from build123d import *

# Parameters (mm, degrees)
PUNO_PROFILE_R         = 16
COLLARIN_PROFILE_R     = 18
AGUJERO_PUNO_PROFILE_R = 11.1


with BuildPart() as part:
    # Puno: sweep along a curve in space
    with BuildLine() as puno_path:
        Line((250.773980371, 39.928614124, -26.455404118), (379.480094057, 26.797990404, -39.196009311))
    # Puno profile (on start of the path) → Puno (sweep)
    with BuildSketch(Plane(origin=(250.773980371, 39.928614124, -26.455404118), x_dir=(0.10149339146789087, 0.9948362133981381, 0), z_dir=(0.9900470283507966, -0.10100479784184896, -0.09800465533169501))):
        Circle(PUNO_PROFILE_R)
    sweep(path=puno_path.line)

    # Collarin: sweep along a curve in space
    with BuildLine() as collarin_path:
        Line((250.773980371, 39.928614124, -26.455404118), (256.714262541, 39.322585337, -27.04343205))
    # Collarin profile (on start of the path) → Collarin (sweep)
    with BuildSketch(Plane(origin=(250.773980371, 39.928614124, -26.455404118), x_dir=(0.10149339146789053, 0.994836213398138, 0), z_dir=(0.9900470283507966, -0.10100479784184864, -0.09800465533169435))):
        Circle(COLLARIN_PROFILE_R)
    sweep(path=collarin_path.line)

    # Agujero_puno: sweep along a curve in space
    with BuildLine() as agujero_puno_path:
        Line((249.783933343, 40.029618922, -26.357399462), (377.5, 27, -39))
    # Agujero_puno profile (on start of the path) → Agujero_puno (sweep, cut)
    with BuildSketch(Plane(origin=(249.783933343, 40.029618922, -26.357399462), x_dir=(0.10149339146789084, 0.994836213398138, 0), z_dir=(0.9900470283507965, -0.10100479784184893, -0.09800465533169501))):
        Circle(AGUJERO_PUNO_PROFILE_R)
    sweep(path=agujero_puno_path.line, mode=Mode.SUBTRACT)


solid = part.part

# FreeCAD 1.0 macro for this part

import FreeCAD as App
import Part
import Sketcher

doc = App.newDocument("Part")
body = doc.addObject("PartDesign::Body", "Body")

sketch1 = body.newObject("Sketcher::SketchObject", "Sketch")
sketch1.Placement = App.Placement(App.Vector(250.77398, 39.928614, -26.455404), App.Rotation(App.Vector(0.101493391, 0.994836213, 0), App.Vector(0.09749858, -0.009946825, 0.995185955), App.Vector(0.990047028, -0.101004798, -0.098004655), "ZXY"))
sketch1.addGeometry(Part.Circle(App.Vector(0, 0, 0), App.Vector(0, 0, 1), 16), False)
sketch1.addConstraint([
    Sketcher.Constraint("Coincident", 0, 3, -1, 1),
    Sketcher.Constraint("Diameter", 0, 32.0),
])

sketch2 = body.newObject("Sketcher::SketchObject", "Sketch001")
sketch2.Placement = App.Placement(App.Vector(6.614764, 64.837787, 0), App.Rotation(App.Vector(0.994836213, -0.101493391, 0), App.Vector(0, 0, 0.999999999), App.Vector(-0.101493391, -0.994836213, 0), "ZXY"))
sketch2.addGeometry(Part.LineSegment(App.Vector(245, -26, 0), App.Vector(375, -39, 0)), False)
sketch2.addConstraint([
    Sketcher.Constraint("Distance", 0, 130.0),
    Sketcher.Constraint("DistanceX", -1, 1, 0, 2, 374.800721),
    Sketcher.Constraint("DistanceY", 0, 2, -1, 1, 39.196009),
    Sketcher.Constraint("DistanceX", -1, 1, 0, 1, 245.426546),
])
doc.recompute()

additivepipe = body.newObject("PartDesign::AdditivePipe", "AdditivePipe")
additivepipe.Profile = sketch1
additivepipe.Spine = (sketch2, ["Edge1"])

sketch3 = body.newObject("Sketcher::SketchObject", "Sketch002")
sketch3.Placement = App.Placement(App.Vector(250.77398, 39.928614, -26.455404), App.Rotation(App.Vector(0.101493391, 0.994836213, 0), App.Vector(0.09749858, -0.009946825, 0.995185955), App.Vector(0.990047028, -0.101004798, -0.098004655), "ZXY"))
sketch3.addGeometry(Part.Circle(App.Vector(0, 0, 0), App.Vector(0, 0, 1), 18), False)
sketch3.addConstraint([
    Sketcher.Constraint("Coincident", 0, 3, -1, 1),
    Sketcher.Constraint("Diameter", 0, 36.0),
])

sketch4 = body.newObject("Sketcher::SketchObject", "Sketch003")
sketch4.Placement = App.Placement(App.Vector(6.614764, 64.837787, 0), App.Rotation(App.Vector(0.994836213, -0.101493391, 0), App.Vector(0, 0, 0.999999999), App.Vector(-0.101493391, -0.994836213, 0), "ZXY"))
sketch4.addGeometry(Part.LineSegment(App.Vector(245, -26, 0), App.Vector(251, -27, 0)), False)
sketch4.addConstraint([
    Sketcher.Constraint("Distance", 0, 6.0),
    Sketcher.Constraint("DistanceX", -1, 1, 0, 1, 245.426546),
    Sketcher.Constraint("DistanceY", 0, 1, -1, 1, 26.455404),
    Sketcher.Constraint("DistanceX", -1, 1, 0, 2, 251.397662),
])
doc.recompute()

additivepipe2 = body.newObject("PartDesign::AdditivePipe", "AdditivePipe001")
additivepipe2.Profile = sketch3
additivepipe2.Spine = (sketch4, ["Edge1"])

sketch5 = body.newObject("Sketcher::SketchObject", "Sketch004")
sketch5.Placement = App.Placement(App.Vector(249.783933, 40.029619, -26.357399), App.Rotation(App.Vector(0.101493391, 0.994836213, 0), App.Vector(0.09749858, -0.009946825, 0.995185955), App.Vector(0.990047028, -0.101004798, -0.098004655), "ZXY"))
sketch5.addGeometry(Part.Circle(App.Vector(0, 0, 0), App.Vector(0, 0, 1), 11), False)
sketch5.addConstraint([
    Sketcher.Constraint("Coincident", 0, 3, -1, 1),
    Sketcher.Constraint("Diameter", 0, 22.2),
])

sketch6 = body.newObject("Sketcher::SketchObject", "Sketch005")
sketch6.Placement = App.Placement(App.Vector(6.614764, 64.837787, 0), App.Rotation(App.Vector(0.994836213, -0.101493391, 0), App.Vector(0, 0, 0.999999999), App.Vector(-0.101493391, -0.994836213, 0), "ZXY"))
sketch6.addGeometry(Part.LineSegment(App.Vector(244, -26, 0), App.Vector(373, -39, 0)), False)
sketch6.addConstraint([
    Sketcher.Constraint("Distance", 0, 129.0),
    Sketcher.Constraint("DistanceY", 0, 2, -1, 1, 39.0),
    Sketcher.Constraint("DistanceY", 0, 1, -1, 1, 26.357399),
    Sketcher.Constraint("DistanceX", -1, 1, 0, 1, 244.43136),
])
doc.recompute()

subtractivepipe = body.newObject("PartDesign::SubtractivePipe", "SubtractivePipe")
subtractivepipe.Profile = sketch5
subtractivepipe.Spine = (sketch6, ["Edge1"])

doc.recompute()
